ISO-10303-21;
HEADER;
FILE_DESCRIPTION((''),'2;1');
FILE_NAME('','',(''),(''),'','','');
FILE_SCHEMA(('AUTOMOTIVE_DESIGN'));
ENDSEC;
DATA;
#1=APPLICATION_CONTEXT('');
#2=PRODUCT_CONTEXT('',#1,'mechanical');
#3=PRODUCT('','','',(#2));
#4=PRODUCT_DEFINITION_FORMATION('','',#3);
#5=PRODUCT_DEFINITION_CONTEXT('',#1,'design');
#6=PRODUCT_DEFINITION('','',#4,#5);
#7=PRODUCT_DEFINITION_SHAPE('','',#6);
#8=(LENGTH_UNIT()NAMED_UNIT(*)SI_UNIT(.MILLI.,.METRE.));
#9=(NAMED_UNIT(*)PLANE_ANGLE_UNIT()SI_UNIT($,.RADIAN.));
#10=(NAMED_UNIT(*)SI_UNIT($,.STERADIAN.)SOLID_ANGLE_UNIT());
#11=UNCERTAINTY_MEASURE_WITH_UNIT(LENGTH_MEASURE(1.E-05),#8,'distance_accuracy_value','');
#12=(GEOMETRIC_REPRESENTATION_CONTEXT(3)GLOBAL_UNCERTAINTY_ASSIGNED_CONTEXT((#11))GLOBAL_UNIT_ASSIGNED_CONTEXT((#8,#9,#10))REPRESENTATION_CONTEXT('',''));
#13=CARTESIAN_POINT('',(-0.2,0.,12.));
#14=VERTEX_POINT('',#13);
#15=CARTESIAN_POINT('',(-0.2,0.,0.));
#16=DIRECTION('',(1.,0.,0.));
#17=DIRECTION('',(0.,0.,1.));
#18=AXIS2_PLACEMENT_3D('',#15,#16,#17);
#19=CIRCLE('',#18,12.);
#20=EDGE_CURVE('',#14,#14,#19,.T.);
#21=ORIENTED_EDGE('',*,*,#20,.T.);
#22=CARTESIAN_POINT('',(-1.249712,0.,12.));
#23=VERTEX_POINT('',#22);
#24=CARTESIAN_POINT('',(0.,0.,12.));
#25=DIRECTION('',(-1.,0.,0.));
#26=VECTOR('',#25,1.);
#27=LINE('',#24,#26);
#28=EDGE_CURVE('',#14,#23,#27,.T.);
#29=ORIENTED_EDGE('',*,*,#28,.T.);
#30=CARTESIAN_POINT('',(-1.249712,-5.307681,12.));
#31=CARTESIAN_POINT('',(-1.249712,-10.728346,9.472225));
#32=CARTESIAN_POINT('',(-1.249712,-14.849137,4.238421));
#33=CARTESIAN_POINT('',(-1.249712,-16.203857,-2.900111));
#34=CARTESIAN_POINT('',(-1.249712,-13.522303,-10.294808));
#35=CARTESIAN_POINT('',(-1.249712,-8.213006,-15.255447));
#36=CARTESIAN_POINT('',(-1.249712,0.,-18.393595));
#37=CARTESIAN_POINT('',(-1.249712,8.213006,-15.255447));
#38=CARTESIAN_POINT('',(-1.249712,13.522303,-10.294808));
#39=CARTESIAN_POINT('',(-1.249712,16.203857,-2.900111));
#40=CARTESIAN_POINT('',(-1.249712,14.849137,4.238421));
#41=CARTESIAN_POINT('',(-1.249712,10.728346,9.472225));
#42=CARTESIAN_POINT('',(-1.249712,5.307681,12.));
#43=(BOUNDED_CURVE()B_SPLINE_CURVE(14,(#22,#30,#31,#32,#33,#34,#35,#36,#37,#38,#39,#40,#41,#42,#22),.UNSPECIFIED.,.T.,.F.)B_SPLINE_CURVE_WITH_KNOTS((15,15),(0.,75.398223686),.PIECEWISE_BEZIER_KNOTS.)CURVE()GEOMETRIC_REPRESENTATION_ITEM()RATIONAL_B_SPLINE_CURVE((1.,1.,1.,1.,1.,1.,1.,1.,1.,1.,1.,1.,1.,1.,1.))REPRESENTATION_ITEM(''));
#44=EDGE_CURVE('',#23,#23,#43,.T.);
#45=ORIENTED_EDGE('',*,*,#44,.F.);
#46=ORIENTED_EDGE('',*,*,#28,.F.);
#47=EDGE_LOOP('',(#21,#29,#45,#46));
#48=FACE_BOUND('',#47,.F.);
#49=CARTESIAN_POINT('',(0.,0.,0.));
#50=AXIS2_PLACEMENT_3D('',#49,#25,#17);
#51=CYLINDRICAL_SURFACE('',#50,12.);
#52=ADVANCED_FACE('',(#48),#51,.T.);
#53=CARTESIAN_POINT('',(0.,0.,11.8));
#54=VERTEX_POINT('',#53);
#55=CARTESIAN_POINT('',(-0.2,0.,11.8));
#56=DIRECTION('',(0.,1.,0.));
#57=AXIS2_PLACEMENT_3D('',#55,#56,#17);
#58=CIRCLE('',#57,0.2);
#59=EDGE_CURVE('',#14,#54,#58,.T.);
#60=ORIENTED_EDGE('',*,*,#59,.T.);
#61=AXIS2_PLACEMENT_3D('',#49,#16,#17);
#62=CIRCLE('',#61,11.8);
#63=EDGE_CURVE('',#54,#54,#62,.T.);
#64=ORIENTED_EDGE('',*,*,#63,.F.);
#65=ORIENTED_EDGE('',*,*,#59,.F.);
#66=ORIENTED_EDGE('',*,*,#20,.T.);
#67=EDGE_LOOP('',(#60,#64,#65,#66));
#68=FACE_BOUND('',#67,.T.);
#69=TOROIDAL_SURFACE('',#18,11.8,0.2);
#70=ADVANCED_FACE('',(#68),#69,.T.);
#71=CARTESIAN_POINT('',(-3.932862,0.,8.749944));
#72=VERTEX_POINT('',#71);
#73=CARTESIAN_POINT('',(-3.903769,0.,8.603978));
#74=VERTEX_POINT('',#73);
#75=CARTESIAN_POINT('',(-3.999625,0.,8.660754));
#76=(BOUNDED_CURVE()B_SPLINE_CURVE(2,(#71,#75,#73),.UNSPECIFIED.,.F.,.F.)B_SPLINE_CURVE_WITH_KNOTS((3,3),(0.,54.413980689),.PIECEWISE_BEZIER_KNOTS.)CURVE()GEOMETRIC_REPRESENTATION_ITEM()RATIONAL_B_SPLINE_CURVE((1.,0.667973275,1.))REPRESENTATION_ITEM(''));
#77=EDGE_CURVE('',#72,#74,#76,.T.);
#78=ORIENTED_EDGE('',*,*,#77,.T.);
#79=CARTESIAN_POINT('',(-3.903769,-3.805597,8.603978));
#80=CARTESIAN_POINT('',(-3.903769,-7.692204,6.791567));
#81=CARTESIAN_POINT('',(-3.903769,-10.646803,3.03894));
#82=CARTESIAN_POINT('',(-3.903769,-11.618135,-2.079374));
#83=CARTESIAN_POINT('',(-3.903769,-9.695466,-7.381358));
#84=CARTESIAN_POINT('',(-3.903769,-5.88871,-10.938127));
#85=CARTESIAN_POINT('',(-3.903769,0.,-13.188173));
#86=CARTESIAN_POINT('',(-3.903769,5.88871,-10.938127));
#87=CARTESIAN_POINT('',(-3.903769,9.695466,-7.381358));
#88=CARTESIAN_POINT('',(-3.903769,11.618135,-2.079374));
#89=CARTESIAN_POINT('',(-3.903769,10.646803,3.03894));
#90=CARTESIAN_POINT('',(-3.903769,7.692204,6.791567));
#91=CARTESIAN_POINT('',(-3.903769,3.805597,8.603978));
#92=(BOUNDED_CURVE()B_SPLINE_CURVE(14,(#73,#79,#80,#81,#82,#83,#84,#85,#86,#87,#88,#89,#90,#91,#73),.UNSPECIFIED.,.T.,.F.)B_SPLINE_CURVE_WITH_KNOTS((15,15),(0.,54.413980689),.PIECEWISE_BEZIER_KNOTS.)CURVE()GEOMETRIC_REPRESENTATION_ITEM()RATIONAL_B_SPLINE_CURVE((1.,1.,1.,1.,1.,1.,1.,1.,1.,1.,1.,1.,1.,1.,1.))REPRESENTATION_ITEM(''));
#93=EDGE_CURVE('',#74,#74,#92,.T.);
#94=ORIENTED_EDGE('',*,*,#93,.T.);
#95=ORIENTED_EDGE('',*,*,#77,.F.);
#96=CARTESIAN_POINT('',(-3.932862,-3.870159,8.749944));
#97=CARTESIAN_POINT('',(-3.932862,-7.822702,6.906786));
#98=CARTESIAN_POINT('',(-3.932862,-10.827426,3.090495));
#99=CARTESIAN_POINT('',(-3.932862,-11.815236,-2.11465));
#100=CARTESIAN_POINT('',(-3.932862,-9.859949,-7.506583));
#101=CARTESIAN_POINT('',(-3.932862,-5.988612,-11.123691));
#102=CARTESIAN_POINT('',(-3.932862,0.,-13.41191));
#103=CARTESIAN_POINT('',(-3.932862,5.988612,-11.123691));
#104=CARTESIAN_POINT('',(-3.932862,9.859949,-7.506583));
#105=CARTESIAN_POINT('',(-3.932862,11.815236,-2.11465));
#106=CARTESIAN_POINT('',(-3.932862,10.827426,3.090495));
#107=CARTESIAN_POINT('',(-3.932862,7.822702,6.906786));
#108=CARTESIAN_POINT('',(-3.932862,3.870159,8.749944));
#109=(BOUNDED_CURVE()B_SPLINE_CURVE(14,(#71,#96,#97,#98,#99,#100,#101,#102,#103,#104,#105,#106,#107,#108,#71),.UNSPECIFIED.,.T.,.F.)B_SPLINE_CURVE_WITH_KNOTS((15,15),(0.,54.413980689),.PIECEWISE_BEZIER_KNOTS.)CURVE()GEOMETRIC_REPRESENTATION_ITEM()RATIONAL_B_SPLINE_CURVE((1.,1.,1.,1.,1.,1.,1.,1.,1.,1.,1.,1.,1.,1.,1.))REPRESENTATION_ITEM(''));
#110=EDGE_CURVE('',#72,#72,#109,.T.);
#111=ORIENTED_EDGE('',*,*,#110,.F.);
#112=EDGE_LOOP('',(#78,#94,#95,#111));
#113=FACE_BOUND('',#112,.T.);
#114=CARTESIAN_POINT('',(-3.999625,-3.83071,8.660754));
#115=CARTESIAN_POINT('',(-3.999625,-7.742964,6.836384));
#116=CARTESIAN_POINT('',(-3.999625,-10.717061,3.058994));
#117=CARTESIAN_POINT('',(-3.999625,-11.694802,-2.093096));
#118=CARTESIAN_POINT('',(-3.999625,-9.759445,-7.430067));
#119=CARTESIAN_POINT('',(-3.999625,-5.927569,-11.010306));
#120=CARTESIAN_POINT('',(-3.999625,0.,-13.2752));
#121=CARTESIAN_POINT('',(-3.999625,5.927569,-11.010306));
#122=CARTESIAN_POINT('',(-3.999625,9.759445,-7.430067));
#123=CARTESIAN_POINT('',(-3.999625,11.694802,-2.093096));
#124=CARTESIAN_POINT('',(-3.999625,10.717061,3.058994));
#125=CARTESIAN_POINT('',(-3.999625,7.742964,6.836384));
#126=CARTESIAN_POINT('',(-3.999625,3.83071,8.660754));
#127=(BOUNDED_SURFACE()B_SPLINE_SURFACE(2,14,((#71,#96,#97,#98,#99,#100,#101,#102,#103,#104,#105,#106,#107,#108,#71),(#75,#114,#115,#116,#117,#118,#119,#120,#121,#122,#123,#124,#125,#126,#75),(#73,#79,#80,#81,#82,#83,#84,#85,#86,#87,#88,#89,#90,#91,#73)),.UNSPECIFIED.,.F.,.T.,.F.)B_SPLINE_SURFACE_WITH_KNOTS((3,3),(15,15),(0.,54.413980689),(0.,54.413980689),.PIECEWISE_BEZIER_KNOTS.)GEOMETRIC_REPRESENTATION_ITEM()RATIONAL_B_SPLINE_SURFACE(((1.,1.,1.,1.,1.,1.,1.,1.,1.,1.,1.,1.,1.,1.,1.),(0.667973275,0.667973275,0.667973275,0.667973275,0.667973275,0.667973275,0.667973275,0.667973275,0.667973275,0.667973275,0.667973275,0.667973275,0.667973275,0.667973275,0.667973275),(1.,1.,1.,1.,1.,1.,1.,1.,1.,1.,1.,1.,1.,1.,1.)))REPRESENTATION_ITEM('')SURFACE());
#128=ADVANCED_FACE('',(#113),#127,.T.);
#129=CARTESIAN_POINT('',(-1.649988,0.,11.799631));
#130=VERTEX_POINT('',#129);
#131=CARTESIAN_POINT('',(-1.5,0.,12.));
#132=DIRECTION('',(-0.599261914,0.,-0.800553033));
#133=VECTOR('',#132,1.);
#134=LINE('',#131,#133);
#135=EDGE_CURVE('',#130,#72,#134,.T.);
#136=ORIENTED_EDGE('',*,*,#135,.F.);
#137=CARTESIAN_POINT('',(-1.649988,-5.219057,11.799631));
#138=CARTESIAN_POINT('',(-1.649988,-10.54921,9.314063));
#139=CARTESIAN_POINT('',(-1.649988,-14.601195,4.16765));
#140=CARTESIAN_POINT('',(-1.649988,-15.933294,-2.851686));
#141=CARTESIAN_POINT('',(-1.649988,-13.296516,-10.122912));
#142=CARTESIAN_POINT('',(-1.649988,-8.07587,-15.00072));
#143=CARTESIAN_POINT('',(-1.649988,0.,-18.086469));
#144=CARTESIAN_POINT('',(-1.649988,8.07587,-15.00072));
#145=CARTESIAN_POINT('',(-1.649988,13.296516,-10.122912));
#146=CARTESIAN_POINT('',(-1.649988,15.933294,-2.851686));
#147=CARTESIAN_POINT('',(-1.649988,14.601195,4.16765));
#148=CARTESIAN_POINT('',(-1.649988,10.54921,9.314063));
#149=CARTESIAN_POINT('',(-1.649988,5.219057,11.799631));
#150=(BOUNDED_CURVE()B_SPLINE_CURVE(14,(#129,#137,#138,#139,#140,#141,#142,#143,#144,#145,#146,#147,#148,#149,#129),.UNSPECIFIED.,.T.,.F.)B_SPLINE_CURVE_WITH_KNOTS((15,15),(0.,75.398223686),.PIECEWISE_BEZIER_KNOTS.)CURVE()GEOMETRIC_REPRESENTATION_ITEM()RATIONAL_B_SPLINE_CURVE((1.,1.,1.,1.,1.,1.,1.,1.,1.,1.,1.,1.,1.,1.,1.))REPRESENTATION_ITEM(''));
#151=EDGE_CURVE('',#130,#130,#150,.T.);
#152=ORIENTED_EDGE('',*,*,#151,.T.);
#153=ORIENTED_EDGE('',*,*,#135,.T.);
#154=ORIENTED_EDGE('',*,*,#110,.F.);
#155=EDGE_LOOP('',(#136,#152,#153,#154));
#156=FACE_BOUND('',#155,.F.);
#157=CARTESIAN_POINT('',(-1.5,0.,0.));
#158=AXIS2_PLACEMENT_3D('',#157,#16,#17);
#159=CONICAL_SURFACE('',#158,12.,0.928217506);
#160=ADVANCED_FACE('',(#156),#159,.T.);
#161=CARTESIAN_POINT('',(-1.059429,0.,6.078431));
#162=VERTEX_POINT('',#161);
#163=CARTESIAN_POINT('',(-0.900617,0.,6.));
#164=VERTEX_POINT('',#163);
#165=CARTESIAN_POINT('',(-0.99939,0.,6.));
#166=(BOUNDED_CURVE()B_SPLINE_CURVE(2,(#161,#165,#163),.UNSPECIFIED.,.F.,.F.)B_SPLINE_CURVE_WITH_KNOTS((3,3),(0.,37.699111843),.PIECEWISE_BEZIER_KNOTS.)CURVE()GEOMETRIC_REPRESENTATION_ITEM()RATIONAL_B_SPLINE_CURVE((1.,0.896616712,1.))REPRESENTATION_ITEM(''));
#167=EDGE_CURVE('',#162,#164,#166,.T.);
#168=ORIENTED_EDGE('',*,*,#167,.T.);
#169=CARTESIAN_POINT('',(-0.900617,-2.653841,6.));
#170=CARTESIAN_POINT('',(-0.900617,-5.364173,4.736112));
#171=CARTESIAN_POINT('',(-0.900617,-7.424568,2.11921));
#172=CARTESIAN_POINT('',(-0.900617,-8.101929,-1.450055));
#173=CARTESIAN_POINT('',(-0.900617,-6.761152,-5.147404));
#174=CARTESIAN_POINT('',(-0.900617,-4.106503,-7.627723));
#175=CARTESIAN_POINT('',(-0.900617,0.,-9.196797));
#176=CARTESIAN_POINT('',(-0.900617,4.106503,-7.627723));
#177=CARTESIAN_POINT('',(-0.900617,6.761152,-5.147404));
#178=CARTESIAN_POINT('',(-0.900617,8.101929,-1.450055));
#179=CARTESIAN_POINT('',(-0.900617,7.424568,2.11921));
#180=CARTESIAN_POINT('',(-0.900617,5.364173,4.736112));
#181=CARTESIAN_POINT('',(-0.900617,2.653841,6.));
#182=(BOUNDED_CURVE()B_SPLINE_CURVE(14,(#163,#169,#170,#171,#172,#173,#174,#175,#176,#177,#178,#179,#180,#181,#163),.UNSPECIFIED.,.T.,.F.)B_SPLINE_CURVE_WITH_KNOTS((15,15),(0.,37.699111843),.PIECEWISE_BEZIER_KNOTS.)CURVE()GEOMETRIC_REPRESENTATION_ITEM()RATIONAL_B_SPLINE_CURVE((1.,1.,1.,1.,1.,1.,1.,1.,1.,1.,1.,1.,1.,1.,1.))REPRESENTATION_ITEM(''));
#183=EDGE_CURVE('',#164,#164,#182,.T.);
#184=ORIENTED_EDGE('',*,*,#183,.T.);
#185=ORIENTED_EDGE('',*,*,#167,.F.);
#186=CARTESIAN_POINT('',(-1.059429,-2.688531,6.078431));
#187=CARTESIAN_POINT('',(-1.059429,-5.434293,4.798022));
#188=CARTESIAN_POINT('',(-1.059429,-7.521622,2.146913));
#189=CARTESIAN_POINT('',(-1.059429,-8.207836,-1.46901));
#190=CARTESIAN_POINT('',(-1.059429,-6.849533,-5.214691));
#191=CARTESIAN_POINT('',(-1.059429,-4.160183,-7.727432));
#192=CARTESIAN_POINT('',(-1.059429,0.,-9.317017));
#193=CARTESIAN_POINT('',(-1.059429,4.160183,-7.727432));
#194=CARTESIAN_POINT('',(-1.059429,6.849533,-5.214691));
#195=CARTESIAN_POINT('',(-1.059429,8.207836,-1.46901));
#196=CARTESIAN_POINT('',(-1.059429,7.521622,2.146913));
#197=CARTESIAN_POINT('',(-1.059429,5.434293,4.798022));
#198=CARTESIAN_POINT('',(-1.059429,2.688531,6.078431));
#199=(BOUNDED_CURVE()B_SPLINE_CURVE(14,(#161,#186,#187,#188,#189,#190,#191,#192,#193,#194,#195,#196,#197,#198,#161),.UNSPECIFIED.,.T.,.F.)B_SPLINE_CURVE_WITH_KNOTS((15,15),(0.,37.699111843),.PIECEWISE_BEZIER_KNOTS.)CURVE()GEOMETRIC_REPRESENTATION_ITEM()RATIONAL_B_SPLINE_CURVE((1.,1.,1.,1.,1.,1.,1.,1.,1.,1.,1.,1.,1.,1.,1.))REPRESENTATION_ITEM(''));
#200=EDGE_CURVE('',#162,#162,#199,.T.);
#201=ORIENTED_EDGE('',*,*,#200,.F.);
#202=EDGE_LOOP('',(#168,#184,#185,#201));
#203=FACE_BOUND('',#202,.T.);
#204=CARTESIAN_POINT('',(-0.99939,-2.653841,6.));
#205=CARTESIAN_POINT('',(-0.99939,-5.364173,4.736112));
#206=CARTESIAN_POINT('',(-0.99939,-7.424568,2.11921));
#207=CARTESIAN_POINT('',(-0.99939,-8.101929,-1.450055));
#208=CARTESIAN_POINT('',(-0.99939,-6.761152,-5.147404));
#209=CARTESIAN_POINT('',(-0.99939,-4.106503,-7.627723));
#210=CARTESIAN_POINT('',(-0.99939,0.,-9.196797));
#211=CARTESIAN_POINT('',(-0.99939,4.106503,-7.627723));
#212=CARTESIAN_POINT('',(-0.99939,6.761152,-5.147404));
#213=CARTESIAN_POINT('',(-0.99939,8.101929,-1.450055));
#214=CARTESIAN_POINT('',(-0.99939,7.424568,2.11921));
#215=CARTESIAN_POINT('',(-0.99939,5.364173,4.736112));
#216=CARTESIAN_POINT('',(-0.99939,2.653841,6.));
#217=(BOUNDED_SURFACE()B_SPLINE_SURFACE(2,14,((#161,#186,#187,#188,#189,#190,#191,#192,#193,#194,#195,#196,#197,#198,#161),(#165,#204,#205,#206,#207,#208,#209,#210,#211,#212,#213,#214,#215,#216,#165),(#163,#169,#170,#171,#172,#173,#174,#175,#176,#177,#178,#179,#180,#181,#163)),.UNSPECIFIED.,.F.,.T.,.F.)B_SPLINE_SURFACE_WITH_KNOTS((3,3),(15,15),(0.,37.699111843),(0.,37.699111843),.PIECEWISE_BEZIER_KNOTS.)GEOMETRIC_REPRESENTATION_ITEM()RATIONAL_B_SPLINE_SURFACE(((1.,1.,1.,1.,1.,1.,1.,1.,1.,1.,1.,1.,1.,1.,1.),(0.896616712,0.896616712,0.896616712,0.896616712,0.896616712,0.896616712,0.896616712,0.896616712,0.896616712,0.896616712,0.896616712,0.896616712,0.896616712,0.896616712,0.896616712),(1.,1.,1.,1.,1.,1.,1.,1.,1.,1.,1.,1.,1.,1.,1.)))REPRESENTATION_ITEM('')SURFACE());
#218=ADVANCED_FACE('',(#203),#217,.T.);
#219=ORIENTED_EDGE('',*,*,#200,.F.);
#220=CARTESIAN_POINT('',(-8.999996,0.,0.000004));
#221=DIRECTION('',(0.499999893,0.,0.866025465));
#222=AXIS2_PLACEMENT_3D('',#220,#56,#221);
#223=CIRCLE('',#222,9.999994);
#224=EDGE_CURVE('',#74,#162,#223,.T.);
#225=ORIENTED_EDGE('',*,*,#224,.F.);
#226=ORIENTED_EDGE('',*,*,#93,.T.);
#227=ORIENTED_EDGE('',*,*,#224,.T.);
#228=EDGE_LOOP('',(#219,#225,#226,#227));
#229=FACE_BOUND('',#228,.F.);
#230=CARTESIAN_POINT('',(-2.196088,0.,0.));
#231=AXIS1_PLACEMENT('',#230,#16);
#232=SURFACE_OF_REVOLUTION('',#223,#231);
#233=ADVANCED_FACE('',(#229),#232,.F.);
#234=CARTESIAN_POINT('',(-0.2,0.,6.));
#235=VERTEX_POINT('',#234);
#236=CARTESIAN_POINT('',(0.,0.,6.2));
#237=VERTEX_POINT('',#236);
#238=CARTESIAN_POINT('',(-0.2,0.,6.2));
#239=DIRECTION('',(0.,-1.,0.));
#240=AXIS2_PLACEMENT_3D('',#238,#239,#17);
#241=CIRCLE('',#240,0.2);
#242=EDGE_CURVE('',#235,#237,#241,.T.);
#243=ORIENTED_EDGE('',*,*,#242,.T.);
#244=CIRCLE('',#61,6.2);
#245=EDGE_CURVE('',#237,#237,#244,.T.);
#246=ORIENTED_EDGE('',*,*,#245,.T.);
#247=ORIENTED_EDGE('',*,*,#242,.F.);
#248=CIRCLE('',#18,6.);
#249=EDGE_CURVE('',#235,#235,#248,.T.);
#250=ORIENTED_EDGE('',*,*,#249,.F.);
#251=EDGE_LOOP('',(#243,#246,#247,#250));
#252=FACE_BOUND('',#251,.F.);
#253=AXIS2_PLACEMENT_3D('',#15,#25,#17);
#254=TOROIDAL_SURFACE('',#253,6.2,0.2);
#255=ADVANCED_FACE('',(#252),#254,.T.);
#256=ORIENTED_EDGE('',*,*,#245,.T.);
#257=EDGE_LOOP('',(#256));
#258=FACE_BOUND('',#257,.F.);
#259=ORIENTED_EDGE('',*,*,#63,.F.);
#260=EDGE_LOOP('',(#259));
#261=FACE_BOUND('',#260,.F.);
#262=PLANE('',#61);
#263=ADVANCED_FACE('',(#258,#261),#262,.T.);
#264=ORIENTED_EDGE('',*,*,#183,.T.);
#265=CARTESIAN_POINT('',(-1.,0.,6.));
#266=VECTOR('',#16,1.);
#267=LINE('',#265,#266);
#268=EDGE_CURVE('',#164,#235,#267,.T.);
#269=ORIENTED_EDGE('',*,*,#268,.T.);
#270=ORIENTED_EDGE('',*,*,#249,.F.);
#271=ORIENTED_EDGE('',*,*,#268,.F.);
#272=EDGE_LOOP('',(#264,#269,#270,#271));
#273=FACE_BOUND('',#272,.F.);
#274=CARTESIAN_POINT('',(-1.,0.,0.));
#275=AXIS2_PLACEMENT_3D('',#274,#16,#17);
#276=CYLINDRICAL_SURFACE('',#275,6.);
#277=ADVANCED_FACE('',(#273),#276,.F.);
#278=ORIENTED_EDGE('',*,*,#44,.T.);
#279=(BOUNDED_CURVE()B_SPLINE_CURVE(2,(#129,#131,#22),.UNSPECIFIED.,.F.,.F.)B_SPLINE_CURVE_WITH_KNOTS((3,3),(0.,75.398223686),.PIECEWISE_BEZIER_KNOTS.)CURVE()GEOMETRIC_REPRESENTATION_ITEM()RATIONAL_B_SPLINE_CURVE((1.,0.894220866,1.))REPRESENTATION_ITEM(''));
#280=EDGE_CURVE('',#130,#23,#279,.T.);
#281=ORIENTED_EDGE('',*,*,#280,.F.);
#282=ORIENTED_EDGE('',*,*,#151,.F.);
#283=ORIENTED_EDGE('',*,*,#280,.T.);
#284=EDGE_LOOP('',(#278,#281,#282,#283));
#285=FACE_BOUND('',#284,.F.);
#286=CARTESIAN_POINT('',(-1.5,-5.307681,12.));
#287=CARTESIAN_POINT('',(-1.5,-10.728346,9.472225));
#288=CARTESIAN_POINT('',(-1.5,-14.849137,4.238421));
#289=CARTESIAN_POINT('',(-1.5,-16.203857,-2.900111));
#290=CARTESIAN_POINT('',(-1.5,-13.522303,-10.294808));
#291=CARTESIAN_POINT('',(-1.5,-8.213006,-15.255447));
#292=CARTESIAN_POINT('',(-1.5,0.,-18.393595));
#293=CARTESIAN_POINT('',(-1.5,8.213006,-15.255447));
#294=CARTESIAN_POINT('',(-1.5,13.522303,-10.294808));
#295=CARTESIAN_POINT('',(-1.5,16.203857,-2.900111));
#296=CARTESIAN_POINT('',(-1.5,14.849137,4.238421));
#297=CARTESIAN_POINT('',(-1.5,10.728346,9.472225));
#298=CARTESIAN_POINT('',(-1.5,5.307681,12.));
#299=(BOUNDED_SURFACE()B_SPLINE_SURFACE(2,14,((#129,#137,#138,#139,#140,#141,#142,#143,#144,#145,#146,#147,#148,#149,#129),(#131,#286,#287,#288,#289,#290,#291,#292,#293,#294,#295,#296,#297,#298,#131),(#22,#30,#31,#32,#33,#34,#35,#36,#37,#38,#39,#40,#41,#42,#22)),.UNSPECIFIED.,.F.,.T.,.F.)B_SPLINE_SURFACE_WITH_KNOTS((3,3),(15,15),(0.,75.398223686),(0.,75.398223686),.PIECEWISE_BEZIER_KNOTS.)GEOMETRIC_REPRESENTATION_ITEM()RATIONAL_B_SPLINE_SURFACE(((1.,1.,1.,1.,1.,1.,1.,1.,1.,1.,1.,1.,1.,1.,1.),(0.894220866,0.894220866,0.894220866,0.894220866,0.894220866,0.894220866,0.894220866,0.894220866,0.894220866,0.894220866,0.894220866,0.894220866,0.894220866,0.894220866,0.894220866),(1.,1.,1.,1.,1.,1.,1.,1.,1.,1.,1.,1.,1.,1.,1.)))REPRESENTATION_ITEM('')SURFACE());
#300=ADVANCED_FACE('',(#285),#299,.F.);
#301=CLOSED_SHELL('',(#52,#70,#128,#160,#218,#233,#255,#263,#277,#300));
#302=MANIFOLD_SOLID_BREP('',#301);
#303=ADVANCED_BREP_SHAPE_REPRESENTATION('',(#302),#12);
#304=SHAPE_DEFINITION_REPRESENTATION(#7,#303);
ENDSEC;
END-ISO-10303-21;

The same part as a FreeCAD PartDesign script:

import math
import FreeCAD as App
import Part
import Sketcher

V = App.Vector
Q = App.Units.Quantity


def edges_at(feature, points):
    """Names of the edges that pass closest to the given points."""
    edges = feature.Shape.Edges
    near = lambda p: min(range(len(edges)), key=lambda i: edges[i].distToShape(Part.Vertex(*p))[0])
    return sorted({f"Edge{near(p) + 1}" for p in points})

doc = App.newDocument("Part")
body = doc.addObject("PartDesign::Body", "Body")

# Sketch on XZ plane
sketch1 = body.newObject("Sketcher::SketchObject", "Sketch")
sketch1.AttachmentSupport = (doc.getObject("XZ_Plane"), [""])
sketch1.MapMode = "FlatFace"
sketch1.addGeometry([
    Part.ArcOfCircle(Part.Circle(V(-8.999996, 0.000004, 0), V(0, 0, 1), 9.999994), math.radians(36.869891), math.radians(60.000007)),  # 0
    Part.LineSegment(V(-1, 6, 0), V(0, 6, 0)),  # 1
    Part.LineSegment(V(0, 6, 0), V(0, 12, 0)),  # 2
    Part.LineSegment(V(0, 12, 0), V(-1.5, 12, 0)),  # 3
    Part.LineSegment(V(-1.5, 12, 0), V(-4, 8.660254, 0)),  # 4
], False)
sketch1.addConstraint([
    Sketcher.Constraint("Coincident", 0, 1, 1, 1),
    Sketcher.Constraint("Coincident", 1, 2, 2, 1),
    Sketcher.Constraint("Coincident", 2, 2, 3, 1),
    Sketcher.Constraint("Coincident", 3, 2, 4, 1),
    Sketcher.Constraint("Coincident", 4, 2, 0, 2),
    Sketcher.Constraint("Horizontal", 1),
    Sketcher.Constraint("Vertical", 2),
    Sketcher.Constraint("Horizontal", 3),
    Sketcher.Constraint("PointOnObject", 1, 2, -2),
    Sketcher.Constraint("DistanceX", 1, 1, 1, 2, Q("1 mm")),
    Sketcher.Constraint("DistanceY", 2, 1, 2, 2, Q("6 mm")),
    Sketcher.Constraint("DistanceX", 3, 2, 3, 1, Q("1.5 mm")),
    Sketcher.Constraint("DistanceY", -1, 1, 0, 1, Q("6 mm")),
    Sketcher.Constraint("DistanceX", 4, 2, -1, 1, Q("4 mm")),
    Sketcher.Constraint("Radius", 0, Q("9.999994 mm")),
    Sketcher.Constraint("Distance", 4, Q("4.171799 mm")),
])
revolution = body.newObject("PartDesign::Revolution", "Revolution")
revolution.Profile = sketch1
revolution.ReferenceAxis = (sketch1, ["H_Axis"])
revolution.Angle = 360
doc.recompute()

fillet = body.newObject("PartDesign::Fillet", "Fillet")
fillet.Base = (revolution, edges_at(revolution, [(-1, 0, -6)]))
fillet.Radius = 0.2
doc.recompute()

fillet2 = body.newObject("PartDesign::Fillet", "Fillet001")
fillet2.Base = (fillet, edges_at(fillet, [(-1.5, 0, -12)]))
fillet2.Radius = 0.5
doc.recompute()

fillet3 = body.newObject("PartDesign::Fillet", "Fillet002")
fillet3.Base = (fillet2, edges_at(fillet2, [(0, 0, -12)]))
fillet3.Radius = 0.2
doc.recompute()

fillet4 = body.newObject("PartDesign::Fillet", "Fillet003")
fillet4.Base = (fillet3, edges_at(fillet3, [(-4, 0, -8.66)]))
fillet4.Radius = 0.1
doc.recompute()

fillet5 = body.newObject("PartDesign::Fillet", "Fillet004")
fillet5.Base = (fillet4, edges_at(fillet4, [(0, 0, -6)]))
fillet5.Radius = 0.2

doc.recompute()
